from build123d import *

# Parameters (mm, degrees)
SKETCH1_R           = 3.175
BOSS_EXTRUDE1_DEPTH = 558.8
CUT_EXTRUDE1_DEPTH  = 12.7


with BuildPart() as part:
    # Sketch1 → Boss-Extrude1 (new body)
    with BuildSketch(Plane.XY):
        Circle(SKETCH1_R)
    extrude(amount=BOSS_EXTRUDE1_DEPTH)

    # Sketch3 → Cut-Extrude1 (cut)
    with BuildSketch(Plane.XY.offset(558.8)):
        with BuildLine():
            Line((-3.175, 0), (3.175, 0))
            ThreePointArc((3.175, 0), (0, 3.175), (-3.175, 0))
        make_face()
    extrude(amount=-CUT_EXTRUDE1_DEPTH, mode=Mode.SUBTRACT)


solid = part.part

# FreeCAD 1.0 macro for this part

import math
import FreeCAD as App
import Part
import Sketcher
Q = App.Units.Quantity

doc = App.newDocument("Part")
body = doc.addObject("PartDesign::Body", "Body")

# Sketch on XY plane
sketch1 = body.newObject("Sketcher::SketchObject", "Sketch")
sketch1.AttachmentSupport = (doc.getObject("XY_Plane"), [""])
sketch1.MapMode = "FlatFace"
sketch1.addGeometry(Part.Circle(App.Vector(0, 0, 0), App.Vector(0, 0, 1), 3.175), False)
sketch1.addConstraint([
    Sketcher.Constraint("Coincident", 0, 3, -1, 1),
    Sketcher.Constraint("Diameter", 0, Q("0.25 in")),
])
pad1 = body.newObject("PartDesign::Pad", "Pad")
pad1.Profile = sketch1
pad1.Length = Q("22 in")

# Sketch on XY plane
sketch2 = body.newObject("Sketcher::SketchObject", "Sketch001")
sketch2.AttachmentSupport = (doc.getObject("XY_Plane"), [""])
sketch2.MapMode = "FlatFace"
sketch2.AttachmentOffset = App.Placement(App.Vector(0, 0, 22 * 25.4), App.Rotation())
sketch2.addGeometry([
    Part.LineSegment(App.Vector(-3.175, 0, 0), App.Vector(3.175, 0, 0)),
    Part.ArcOfCircle(Part.Circle(App.Vector(0, 0, 0), App.Vector(0, 0, 1), 3.175), math.radians(0), math.radians(180)),
], False)
sketch2.addConstraint([
    Sketcher.Constraint("Coincident", 0, 1, 1, 2),
    Sketcher.Constraint("Coincident", 1, 1, 0, 2),
    Sketcher.Constraint("Horizontal", 0),
    Sketcher.Constraint("Coincident", 1, 3, -1, 1),
    Sketcher.Constraint("PointOnObject", 0, 1, -1),
    Sketcher.Constraint("Radius", 1, Q("0.125 in")),
])
pocket1 = body.newObject("PartDesign::Pocket", "Pocket")
pocket1.Profile = sketch2
pocket1.Length = Q("0.5 in")

doc.recompute()
